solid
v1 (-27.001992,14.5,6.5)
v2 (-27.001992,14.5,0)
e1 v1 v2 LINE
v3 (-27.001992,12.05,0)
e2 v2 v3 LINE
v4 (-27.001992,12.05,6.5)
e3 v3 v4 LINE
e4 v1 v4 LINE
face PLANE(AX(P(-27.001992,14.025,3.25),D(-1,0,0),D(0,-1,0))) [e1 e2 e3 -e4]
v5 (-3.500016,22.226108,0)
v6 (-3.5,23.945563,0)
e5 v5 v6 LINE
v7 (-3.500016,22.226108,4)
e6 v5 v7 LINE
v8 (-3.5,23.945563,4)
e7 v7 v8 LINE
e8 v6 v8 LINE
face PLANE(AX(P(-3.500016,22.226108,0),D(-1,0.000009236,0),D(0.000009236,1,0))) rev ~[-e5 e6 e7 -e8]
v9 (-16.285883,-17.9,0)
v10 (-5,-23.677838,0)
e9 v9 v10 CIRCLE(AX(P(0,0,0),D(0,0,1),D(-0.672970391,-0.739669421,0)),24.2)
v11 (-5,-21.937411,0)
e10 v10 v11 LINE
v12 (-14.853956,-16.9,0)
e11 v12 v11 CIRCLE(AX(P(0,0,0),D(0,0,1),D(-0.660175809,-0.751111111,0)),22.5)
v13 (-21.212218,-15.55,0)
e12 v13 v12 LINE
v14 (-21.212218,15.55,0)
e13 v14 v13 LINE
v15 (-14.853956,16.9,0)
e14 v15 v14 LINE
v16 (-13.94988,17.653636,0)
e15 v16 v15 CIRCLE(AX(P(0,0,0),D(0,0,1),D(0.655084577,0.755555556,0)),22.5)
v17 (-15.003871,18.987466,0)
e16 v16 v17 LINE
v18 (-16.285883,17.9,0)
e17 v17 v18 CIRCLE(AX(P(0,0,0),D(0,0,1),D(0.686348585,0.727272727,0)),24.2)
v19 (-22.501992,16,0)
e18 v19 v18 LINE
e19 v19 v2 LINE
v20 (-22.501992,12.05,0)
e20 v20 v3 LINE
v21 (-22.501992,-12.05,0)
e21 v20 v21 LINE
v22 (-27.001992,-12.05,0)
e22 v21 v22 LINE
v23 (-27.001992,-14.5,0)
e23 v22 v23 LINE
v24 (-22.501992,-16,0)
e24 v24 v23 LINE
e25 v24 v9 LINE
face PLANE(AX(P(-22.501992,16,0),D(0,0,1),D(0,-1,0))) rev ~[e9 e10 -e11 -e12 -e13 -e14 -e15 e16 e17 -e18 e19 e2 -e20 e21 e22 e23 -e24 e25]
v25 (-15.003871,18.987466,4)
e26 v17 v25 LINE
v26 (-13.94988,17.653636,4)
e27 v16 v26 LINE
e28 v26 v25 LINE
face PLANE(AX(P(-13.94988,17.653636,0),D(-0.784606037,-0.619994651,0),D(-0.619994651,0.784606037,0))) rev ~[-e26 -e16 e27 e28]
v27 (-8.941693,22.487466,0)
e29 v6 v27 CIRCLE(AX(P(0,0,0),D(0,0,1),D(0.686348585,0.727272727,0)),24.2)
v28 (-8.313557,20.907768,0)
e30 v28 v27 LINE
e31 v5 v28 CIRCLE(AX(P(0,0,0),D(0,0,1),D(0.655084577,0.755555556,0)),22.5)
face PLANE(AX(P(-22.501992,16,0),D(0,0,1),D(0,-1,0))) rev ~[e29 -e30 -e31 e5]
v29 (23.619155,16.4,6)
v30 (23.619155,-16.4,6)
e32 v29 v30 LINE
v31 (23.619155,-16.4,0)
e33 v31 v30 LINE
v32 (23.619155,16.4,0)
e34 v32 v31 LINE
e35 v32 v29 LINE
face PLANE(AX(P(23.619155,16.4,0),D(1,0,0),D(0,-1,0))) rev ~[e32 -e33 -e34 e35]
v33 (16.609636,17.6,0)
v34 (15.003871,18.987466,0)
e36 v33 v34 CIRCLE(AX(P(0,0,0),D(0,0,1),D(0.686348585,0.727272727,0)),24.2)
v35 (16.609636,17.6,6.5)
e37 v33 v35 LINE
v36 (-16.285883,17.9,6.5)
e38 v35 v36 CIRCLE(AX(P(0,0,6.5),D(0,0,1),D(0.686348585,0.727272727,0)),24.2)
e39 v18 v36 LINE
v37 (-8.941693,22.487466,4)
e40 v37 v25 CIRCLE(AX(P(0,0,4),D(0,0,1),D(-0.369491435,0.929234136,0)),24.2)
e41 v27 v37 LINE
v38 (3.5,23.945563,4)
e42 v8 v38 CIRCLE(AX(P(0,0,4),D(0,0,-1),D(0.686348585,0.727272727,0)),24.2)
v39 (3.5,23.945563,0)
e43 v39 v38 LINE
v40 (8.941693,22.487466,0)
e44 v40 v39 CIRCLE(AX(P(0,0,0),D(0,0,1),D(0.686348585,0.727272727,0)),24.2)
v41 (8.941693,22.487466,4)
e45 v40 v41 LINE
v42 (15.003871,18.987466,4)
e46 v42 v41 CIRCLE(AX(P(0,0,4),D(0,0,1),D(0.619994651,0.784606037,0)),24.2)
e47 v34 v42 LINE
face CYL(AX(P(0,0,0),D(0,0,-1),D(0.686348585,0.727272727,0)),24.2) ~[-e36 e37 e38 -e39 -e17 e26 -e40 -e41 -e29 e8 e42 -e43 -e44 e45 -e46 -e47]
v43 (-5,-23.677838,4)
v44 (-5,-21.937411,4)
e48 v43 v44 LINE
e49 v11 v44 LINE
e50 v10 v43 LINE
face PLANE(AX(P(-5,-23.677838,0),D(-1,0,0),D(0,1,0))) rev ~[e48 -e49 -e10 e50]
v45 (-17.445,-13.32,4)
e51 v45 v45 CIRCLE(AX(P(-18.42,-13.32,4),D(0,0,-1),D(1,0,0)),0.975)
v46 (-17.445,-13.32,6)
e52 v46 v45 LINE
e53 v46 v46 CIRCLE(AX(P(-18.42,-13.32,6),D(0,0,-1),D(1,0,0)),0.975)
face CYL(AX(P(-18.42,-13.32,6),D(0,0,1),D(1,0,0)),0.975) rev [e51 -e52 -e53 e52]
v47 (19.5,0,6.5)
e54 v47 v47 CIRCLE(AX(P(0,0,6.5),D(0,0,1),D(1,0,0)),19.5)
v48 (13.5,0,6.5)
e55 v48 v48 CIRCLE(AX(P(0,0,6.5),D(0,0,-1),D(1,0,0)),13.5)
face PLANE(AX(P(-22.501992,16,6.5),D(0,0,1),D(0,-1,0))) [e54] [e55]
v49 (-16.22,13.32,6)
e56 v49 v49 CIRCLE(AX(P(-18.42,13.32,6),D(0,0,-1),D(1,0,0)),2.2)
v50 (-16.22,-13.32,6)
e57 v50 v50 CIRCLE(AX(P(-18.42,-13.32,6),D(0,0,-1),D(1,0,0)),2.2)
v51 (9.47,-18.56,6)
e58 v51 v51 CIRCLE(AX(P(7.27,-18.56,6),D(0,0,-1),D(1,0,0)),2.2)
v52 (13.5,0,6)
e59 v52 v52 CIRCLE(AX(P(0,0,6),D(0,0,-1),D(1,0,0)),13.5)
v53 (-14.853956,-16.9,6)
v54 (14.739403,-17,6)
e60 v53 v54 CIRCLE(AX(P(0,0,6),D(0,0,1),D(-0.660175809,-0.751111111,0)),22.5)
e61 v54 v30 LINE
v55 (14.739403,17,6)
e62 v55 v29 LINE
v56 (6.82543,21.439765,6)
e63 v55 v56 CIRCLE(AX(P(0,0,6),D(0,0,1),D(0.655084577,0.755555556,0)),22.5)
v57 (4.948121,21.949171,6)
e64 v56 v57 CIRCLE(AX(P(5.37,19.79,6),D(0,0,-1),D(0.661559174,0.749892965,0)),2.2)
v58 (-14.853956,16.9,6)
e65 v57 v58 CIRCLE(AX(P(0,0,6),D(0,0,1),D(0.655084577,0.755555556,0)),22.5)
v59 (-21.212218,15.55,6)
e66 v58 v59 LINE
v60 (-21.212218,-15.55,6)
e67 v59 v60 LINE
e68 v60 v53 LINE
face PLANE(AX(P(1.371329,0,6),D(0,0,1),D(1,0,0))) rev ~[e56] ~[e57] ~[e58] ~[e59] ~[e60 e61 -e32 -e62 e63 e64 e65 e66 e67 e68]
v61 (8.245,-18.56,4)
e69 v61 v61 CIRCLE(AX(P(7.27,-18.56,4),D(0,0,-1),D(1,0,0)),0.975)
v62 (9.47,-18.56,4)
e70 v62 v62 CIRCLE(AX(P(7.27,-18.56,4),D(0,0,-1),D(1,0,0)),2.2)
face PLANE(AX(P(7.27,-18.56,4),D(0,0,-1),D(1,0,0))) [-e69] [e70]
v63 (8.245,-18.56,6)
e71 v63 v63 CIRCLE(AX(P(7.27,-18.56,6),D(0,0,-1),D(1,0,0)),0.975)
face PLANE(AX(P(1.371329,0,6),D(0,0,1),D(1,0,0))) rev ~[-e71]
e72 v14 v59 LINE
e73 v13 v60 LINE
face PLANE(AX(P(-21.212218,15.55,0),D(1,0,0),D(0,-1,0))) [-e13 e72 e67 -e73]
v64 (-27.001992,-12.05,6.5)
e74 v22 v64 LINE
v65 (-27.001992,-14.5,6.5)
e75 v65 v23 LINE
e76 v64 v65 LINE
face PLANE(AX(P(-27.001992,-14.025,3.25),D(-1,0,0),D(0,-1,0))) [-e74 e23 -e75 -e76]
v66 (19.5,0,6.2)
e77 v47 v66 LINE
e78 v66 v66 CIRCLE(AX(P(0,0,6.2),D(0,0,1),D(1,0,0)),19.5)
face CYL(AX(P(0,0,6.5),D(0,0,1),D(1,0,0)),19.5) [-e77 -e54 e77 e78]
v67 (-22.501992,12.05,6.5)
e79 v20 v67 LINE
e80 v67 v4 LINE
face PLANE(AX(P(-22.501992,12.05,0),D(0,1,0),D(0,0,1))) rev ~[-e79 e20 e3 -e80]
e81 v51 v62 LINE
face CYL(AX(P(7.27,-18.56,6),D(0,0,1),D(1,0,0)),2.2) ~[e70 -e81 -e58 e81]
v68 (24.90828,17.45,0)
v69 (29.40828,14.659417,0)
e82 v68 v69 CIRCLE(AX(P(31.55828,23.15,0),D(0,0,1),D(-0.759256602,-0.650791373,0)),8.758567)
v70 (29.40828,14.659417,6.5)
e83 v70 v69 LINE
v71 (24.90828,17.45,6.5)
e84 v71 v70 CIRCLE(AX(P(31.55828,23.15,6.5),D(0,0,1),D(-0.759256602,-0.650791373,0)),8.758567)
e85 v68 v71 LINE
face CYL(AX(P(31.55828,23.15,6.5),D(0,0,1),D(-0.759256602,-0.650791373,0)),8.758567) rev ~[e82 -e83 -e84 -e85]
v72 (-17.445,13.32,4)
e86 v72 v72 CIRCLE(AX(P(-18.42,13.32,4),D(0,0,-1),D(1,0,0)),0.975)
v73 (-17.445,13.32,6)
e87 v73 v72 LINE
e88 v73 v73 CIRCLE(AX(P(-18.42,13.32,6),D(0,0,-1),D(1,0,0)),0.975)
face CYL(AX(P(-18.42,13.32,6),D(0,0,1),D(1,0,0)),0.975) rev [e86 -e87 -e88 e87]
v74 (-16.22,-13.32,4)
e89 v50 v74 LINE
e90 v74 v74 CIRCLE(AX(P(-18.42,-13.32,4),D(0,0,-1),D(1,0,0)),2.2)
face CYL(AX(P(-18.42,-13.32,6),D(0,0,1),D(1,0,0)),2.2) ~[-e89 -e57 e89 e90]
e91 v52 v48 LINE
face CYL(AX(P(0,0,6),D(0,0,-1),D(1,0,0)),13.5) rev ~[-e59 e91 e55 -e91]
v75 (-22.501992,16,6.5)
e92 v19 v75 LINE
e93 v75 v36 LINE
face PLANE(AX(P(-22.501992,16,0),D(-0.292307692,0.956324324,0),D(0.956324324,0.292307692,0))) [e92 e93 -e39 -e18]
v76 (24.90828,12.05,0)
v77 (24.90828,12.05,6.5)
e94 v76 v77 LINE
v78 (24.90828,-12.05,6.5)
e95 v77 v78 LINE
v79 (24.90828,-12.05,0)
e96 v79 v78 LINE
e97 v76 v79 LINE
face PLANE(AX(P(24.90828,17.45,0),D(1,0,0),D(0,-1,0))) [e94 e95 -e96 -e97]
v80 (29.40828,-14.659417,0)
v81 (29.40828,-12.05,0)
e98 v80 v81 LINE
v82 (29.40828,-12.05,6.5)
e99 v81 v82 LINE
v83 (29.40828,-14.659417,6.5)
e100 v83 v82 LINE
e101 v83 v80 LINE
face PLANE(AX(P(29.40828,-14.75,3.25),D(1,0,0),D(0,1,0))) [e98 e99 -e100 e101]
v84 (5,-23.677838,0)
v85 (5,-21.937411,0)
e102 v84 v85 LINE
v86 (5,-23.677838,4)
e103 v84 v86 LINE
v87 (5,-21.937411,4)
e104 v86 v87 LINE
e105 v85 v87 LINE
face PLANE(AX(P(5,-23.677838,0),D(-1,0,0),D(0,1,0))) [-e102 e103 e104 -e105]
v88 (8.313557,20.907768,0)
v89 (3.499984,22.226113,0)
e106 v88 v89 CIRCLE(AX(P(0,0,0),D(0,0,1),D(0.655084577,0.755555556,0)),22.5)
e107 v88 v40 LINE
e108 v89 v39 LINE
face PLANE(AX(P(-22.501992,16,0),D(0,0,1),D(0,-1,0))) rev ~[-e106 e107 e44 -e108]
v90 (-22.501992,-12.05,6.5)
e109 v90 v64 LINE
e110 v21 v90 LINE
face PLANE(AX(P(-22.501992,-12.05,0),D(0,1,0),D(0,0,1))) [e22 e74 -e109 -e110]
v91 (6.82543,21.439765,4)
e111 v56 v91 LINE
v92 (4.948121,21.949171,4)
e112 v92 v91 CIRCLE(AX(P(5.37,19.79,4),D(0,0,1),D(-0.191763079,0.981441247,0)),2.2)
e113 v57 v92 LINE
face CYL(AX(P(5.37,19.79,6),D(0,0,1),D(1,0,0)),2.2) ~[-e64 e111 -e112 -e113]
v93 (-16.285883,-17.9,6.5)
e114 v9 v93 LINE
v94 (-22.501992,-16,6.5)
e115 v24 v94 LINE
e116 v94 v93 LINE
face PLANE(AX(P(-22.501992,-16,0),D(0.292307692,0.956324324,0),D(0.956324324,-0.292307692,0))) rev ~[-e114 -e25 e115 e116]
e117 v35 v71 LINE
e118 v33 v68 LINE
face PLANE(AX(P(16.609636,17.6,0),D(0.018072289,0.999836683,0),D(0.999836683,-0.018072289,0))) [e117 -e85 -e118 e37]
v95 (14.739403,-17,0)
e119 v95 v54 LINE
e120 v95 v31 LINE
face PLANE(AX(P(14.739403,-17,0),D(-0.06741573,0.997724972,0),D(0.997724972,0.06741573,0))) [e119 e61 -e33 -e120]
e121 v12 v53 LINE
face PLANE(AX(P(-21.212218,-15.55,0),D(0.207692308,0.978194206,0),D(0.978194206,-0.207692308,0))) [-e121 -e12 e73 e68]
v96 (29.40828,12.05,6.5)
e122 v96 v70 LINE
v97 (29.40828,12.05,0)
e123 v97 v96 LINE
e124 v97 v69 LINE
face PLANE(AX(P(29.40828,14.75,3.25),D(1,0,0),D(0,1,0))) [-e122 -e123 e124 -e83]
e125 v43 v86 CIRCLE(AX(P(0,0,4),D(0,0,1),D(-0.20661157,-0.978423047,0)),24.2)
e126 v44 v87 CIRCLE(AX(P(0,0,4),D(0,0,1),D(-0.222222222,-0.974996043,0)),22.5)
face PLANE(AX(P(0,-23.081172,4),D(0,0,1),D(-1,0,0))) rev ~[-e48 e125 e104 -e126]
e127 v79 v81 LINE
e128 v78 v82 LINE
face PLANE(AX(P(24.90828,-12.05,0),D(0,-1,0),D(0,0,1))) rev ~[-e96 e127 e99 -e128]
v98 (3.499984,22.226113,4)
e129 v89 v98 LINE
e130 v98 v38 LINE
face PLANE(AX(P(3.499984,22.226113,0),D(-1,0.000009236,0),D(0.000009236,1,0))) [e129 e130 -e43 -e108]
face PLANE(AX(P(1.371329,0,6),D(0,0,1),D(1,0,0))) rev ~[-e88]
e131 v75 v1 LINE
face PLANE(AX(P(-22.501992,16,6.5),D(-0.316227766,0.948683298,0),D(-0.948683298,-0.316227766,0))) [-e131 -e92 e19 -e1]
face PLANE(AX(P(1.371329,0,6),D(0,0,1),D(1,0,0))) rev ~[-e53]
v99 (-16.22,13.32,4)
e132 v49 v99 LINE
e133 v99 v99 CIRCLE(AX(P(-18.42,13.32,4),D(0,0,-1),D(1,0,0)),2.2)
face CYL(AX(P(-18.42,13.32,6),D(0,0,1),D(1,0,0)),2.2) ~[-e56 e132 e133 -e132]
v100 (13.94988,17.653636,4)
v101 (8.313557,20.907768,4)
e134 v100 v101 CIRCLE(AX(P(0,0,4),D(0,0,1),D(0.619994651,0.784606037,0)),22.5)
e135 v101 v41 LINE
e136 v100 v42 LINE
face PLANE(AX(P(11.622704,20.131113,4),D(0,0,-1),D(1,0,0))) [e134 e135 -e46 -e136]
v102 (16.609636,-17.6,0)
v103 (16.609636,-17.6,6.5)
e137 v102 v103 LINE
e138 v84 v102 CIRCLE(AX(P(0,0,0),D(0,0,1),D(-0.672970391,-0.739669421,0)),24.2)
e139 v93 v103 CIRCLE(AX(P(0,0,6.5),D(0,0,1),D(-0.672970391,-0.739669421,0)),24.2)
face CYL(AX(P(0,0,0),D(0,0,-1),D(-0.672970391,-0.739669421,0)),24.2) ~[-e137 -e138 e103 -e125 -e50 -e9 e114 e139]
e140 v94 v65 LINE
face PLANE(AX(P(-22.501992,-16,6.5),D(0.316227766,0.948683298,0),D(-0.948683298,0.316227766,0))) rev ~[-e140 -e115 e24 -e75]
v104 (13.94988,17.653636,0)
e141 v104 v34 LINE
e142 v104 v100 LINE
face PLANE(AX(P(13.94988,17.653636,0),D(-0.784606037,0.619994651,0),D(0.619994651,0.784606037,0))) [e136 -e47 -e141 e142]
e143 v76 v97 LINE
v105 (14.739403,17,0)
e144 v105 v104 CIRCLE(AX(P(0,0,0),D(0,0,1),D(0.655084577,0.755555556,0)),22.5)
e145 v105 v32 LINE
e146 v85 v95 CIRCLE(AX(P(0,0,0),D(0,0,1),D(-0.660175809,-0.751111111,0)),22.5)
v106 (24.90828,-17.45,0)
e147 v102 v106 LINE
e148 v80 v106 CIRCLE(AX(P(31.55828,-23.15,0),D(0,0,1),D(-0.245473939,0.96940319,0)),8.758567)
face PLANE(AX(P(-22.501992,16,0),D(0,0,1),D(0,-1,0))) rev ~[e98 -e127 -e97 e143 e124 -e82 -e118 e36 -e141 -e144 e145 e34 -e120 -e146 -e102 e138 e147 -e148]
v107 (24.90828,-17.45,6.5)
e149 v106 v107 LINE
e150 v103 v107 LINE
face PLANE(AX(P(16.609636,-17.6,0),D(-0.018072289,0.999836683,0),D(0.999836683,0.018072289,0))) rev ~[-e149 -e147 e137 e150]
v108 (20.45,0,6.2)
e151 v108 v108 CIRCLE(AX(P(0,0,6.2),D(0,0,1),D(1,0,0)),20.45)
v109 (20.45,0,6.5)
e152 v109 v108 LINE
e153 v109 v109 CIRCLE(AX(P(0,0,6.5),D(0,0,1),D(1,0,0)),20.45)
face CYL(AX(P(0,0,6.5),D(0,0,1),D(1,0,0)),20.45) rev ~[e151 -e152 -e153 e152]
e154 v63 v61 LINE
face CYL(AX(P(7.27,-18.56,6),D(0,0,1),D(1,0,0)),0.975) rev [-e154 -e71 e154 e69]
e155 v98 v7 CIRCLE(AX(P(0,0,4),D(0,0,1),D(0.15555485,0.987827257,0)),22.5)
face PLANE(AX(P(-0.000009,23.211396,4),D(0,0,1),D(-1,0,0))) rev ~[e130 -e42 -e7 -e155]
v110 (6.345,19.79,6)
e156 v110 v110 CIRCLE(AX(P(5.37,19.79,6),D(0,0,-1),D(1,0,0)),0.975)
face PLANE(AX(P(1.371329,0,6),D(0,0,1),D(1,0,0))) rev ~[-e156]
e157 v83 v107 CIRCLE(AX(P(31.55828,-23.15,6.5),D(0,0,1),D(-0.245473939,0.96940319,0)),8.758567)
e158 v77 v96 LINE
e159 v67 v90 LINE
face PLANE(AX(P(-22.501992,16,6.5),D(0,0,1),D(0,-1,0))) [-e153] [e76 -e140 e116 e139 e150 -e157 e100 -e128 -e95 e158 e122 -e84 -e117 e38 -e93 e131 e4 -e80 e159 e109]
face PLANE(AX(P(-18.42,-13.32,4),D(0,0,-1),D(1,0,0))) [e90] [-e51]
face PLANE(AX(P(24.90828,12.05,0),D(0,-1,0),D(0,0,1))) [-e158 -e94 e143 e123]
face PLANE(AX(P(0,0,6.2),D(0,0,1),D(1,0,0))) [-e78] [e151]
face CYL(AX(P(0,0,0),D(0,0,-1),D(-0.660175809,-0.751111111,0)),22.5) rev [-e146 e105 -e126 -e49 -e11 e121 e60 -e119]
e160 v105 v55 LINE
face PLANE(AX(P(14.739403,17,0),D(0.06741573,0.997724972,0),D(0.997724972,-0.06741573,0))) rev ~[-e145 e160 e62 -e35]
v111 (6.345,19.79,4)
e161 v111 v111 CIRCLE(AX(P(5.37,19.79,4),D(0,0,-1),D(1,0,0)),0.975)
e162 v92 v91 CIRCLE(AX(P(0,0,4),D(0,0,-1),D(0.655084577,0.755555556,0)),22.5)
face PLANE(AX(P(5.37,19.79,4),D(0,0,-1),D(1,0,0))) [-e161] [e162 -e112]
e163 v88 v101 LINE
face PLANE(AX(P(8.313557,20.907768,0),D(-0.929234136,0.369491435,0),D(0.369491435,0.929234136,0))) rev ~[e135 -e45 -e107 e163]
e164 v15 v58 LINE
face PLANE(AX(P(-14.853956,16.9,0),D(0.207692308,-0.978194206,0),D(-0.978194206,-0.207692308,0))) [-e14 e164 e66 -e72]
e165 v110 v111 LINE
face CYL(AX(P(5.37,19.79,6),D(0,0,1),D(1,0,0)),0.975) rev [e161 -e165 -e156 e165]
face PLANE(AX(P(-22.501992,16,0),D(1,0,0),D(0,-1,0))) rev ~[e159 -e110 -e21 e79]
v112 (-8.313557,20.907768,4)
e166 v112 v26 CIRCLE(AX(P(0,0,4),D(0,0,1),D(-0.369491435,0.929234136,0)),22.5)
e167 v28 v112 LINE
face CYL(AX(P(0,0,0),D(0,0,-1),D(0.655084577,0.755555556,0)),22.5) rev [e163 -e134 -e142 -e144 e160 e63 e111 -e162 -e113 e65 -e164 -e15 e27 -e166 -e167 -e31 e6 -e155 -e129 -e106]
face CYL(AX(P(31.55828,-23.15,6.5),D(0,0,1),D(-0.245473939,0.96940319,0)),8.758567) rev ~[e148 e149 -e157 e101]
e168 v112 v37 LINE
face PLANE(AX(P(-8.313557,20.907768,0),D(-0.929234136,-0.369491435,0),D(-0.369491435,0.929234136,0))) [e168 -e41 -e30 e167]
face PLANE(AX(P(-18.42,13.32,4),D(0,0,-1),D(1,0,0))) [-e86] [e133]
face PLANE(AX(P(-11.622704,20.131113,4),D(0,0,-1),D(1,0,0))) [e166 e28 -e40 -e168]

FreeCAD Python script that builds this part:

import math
import FreeCAD as App
import Part
import Sketcher
Q = App.Units.Quantity


def add_polygon(sketch, points):
    """Adds a closed chain of lines whose ends are joined by coincident constraints."""
    first, n = sketch.GeometryCount, len(points)
    for a, b in zip(points, points[1:] + points[:1]):
        sketch.addGeometry(Part.LineSegment(App.Vector(*a, 0), App.Vector(*b, 0)), False)
    for i in range(n):
        sketch.addConstraint(Sketcher.Constraint("Coincident", first + i, 2, first + (i + 1) % n, 1))

doc = App.newDocument("Part")
params = doc.addObject("Spreadsheet::Sheet", "Params")
for row, (alias, value) in enumerate([
    ("sketch1_radius", "24.2 mm"),
    ("sketch1_height", "32 mm"),
    ("sketch1_height2", "34.9 mm"),
    ("sketch1_length", "6.5 mm"),
    ("sketch1_length2", "8.3 mm"),
    ("pad1_length", "6.5 mm"),
    ("sketch2_radius", "22.5 mm"),
    ("sketch2_height", "31.1 mm"),
    ("sketch2_height2", "32.8 mm"),
    ("sketch2_length", "6.5 mm"),
    ("sketch2_length2", "8.9 mm"),
    ("pocket1_length", "6 mm"),
    ("sketch3_diameter", "27 mm"),
    ("pocket2_length", "1 mm"),
    ("sketch4_width", "5.4 mm"),
    ("sketch4_height", "6.5 mm"),
    ("pad2_length", "4.5 mm"),
    ("sketch5_width", "4.5 mm"),
    ("sketch5_width2", "2.15 mm"),
    ("pocket3_length", "10 mm"),
    ("sketch6_height", "6.5 mm"),
    ("sketch6_width", "3.95 mm"),
    ("pad3_length", "4.5 mm"),
    ("sketch7_width", "4.5 mm"),
    ("sketch7_height", "1.5 mm"),
    ("pocket4_length", "10 mm"),
    ("sketch8_diameter", "1.2 mm"),
    ("pocket5_length", "2 mm"),
    ("sketch9_diameter", "39 mm"),
    ("sketch9_diameter2", "40.9 mm"),
    ("pocket6_length", "0.3 mm"),
    ("sketch10_diameter", "4.4 mm"),
    ("sketch10_diameter2", "1.95 mm"),
    ("pad4_length", "2 mm"),
    ("sketch11_radius", "22.5 mm"),
    ("sketch11_radius2", "24.2 mm"),
    ("pocket7_length", "4 mm"),
    ("sketch12_radius", "22.5 mm"),
    ("sketch12_radius2", "24.2 mm"),
    ("pocket8_length", "4 mm"),
], start=1):
    params.set(f"A{row}", alias)
    params.set(f"B{row}", "=" + value)
    params.setAlias(f"B{row}", alias)

body = doc.addObject("PartDesign::Body", "Body")

# Sketch on XY plane
sketch1 = body.newObject("Sketcher::SketchObject", "Sketch")
sketch1.AttachmentSupport = (doc.getObject("XY_Plane"), [""])
sketch1.MapMode = "FlatFace"
sketch1.addGeometry([
    Part.LineSegment(App.Vector(-22.501992, 16, 0), App.Vector(-22.501992, -16, 0)),  # 0
    Part.LineSegment(App.Vector(-22.501992, -16, 0), App.Vector(-16.285883, -17.9, 0)),  # 1
    Part.ArcOfCircle(Part.Circle(App.Vector(0, 0, 0), App.Vector(0, 0, 1), 24.2), math.radians(-132.296737), math.radians(-46.658242)),  # 2
    Part.LineSegment(App.Vector(16.609636, -17.6, 0), App.Vector(24.90828, -17.45, 0)),  # 3
    Part.LineSegment(App.Vector(24.90828, -17.45, 0), App.Vector(24.90828, 17.45, 0)),  # 4
    Part.LineSegment(App.Vector(24.90828, 17.45, 0), App.Vector(16.609636, 17.6, 0)),  # 5
    Part.ArcOfCircle(Part.Circle(App.Vector(0, 0, 0), App.Vector(0, 0, 1), 24.2), math.radians(46.658242), math.radians(132.296737)),  # 6
    Part.LineSegment(App.Vector(-16.285883, 17.9, 0), App.Vector(-22.501992, 16, 0)),  # 7
], False)
sketch1.addConstraint([
    Sketcher.Constraint("Coincident", 0, 2, 1, 1),
    Sketcher.Constraint("Coincident", 1, 2, 2, 1),
    Sketcher.Constraint("Coincident", 2, 2, 3, 1),
    Sketcher.Constraint("Coincident", 3, 2, 4, 1),
    Sketcher.Constraint("Coincident", 4, 2, 5, 1),
    Sketcher.Constraint("Coincident", 5, 2, 6, 1),
    Sketcher.Constraint("Coincident", 6, 2, 7, 1),
    Sketcher.Constraint("Coincident", 7, 2, 0, 1),
    Sketcher.Constraint("Vertical", 0),
    Sketcher.Constraint("Vertical", 4),
    Sketcher.Constraint("Coincident", 2, 3, -1, 1),
    Sketcher.Constraint("Coincident", 6, 3, -1, 1),
    Sketcher.Constraint("Equal", 2, 6),
    Sketcher.Constraint("Vertical", 2, 2, 5, 2),
    Sketcher.Constraint("Vertical", 1, 2, 6, 2),
    Sketcher.Constraint("Equal", 3, 5),
    Sketcher.Constraint("Equal", 1, 7),
    Sketcher.Constraint("Radius", 2, Q("24.2 mm")),
    Sketcher.Constraint("DistanceY", 0, 2, 0, 1, Q("32 mm")),
    Sketcher.Constraint("DistanceY", 4, 1, 4, 2, Q("34.9 mm")),
    Sketcher.Constraint("Distance", 1, Q("6.5 mm")),
    Sketcher.Constraint("Distance", 3, Q("8.3 mm")),
    Sketcher.Constraint("DistanceY", 1, 2, -1, 1, Q("17.9 mm")),
    Sketcher.Constraint("DistanceY", 2, 2, -1, 1, Q("17.6 mm")),
])
sketch1.setExpression("Constraints[17]", "Params.sketch1_radius")
sketch1.setExpression("Constraints[18]", "Params.sketch1_height")
sketch1.setExpression("Constraints[19]", "Params.sketch1_height2")
sketch1.setExpression("Constraints[20]", "Params.sketch1_length")
sketch1.setExpression("Constraints[21]", "Params.sketch1_length2")
pad1 = body.newObject("PartDesign::Pad", "Pad")
pad1.Profile = sketch1
pad1.setExpression("Length", "Params.pad1_length")

# Sketch on XY plane
sketch2 = body.newObject("Sketcher::SketchObject", "Sketch001")
sketch2.AttachmentSupport = (doc.getObject("XY_Plane"), [""])
sketch2.MapMode = "FlatFace"
sketch2.addGeometry([
    Part.LineSegment(App.Vector(-14.853956, 16.9, 0), App.Vector(-21.212218, 15.55, 0)),  # 0
    Part.LineSegment(App.Vector(-21.212218, 15.55, 0), App.Vector(-21.212218, -15.55, 0)),  # 1
    Part.LineSegment(App.Vector(-21.212218, -15.55, 0), App.Vector(-14.853956, -16.9, 0)),  # 2
    Part.ArcOfCircle(Part.Circle(App.Vector(0, 0, 0), App.Vector(0, 0, 1), 22.5), math.radians(-131.313282), math.radians(-49.073937)),  # 3
    Part.LineSegment(App.Vector(14.739403, -17, 0), App.Vector(23.619155, -16.4, 0)),  # 4
    Part.LineSegment(App.Vector(23.619155, -16.4, 0), App.Vector(23.619155, 16.4, 0)),  # 5
    Part.LineSegment(App.Vector(23.619155, 16.4, 0), App.Vector(14.739403, 17, 0)),  # 6
    Part.ArcOfCircle(Part.Circle(App.Vector(0, 0, 0), App.Vector(0, 0, 1), 22.5), math.radians(49.073937), math.radians(131.313282)),  # 7
], False)
sketch2.addConstraint([
    Sketcher.Constraint("Coincident", 0, 2, 1, 1),
    Sketcher.Constraint("Coincident", 1, 2, 2, 1),
    Sketcher.Constraint("Coincident", 2, 2, 3, 1),
    Sketcher.Constraint("Coincident", 3, 2, 4, 1),
    Sketcher.Constraint("Coincident", 4, 2, 5, 1),
    Sketcher.Constraint("Coincident", 5, 2, 6, 1),
    Sketcher.Constraint("Coincident", 6, 2, 7, 1),
    Sketcher.Constraint("Coincident", 7, 2, 0, 1),
    Sketcher.Constraint("Vertical", 1),
    Sketcher.Constraint("Vertical", 5),
    Sketcher.Constraint("Coincident", 3, 3, -1, 1),
    Sketcher.Constraint("Coincident", 7, 3, -1, 1),
    Sketcher.Constraint("Equal", 3, 7),
    Sketcher.Constraint("Vertical", 3, 2, 6, 2),
    Sketcher.Constraint("Vertical", 2, 2, 7, 2),
    Sketcher.Constraint("Equal", 0, 2),
    Sketcher.Constraint("Equal", 4, 6),
    Sketcher.Constraint("Radius", 3, Q("22.5 mm")),
    Sketcher.Constraint("DistanceY", 1, 2, 1, 1, Q("31.1 mm")),
    Sketcher.Constraint("DistanceY", 5, 1, 5, 2, Q("32.8 mm")),
    Sketcher.Constraint("DistanceY", 3, 2, -1, 1, Q("17 mm")),
    Sketcher.Constraint("Distance", 0, Q("6.5 mm")),
    Sketcher.Constraint("Distance", 4, Q("8.9 mm")),
    Sketcher.Constraint("DistanceY", 2, 2, -1, 1, Q("16.9 mm")),
])
sketch2.setExpression("Constraints[17]", "Params.sketch2_radius")
sketch2.setExpression("Constraints[18]", "Params.sketch2_height")
sketch2.setExpression("Constraints[19]", "Params.sketch2_height2")
sketch2.setExpression("Constraints[21]", "Params.sketch2_length")
sketch2.setExpression("Constraints[22]", "Params.sketch2_length2")
pocket1 = body.newObject("PartDesign::Pocket", "Pocket")
pocket1.Profile = sketch2
pocket1.setExpression("Length", "Params.pocket1_length")
pocket1.Reversed = True

# Sketch on XY plane
sketch3 = body.newObject("Sketcher::SketchObject", "Sketch002")
sketch3.AttachmentSupport = (doc.getObject("XY_Plane"), [""])
sketch3.MapMode = "FlatFace"
sketch3.AttachmentOffset = App.Placement(App.Vector(0, 0, 6), App.Rotation())
sketch3.addGeometry(Part.Circle(App.Vector(0, 0, 0), App.Vector(0, 0, 1), 13.5), False)
sketch3.addConstraint([
    Sketcher.Constraint("Coincident", 0, 3, -1, 1),
    Sketcher.Constraint("Diameter", 0, Q("27 mm")),
])
sketch3.setExpression("Constraints[1]", "Params.sketch3_diameter")
pocket2 = body.newObject("PartDesign::Pocket", "Pocket001")
pocket2.Profile = sketch3
pocket2.setExpression("Length", "Params.pocket2_length")
pocket2.Reversed = True

# Sketch on YZ plane
sketch4 = body.newObject("Sketcher::SketchObject", "Sketch003")
sketch4.AttachmentSupport = (doc.getObject("YZ_Plane"), [""])
sketch4.MapMode = "FlatFace"
sketch4.AttachmentOffset = App.Placement(App.Vector(0, 0, 24.90828), App.Rotation())
add_polygon(sketch4, [(-17.45, 6.5), (-17.45, 0), (-12.05, 0), (-12.05, 6.5)])  # lines 0-3
add_polygon(sketch4, [(12.05, 6.5), (12.05, 0), (17.45, 0), (17.45, 6.5)])  # lines 4-7
sketch4.addConstraint([
    Sketcher.Constraint("Vertical", 0),
    Sketcher.Constraint("Horizontal", 1),
    Sketcher.Constraint("Vertical", 2),
    Sketcher.Constraint("Horizontal", 3),
    Sketcher.Constraint("Vertical", 4),
    Sketcher.Constraint("Horizontal", 5),
    Sketcher.Constraint("Vertical", 6),
    Sketcher.Constraint("Horizontal", 7),
    Sketcher.Constraint("Symmetric", 1, 2, 4, 2, -1, 1),
    Sketcher.Constraint("Symmetric", 0, 2, 5, 2, -2),
    Sketcher.Constraint("Horizontal", 3, 2, 6, 2),
    Sketcher.Constraint("DistanceX", 1, 1, 1, 2, Q("5.4 mm")),
    Sketcher.Constraint("DistanceY", 0, 2, 0, 1, Q("6.5 mm")),
    Sketcher.Constraint("DistanceX", 1, 2, 4, 2, Q("24.1 mm")),
])
sketch4.setExpression("Constraints[19]", "Params.sketch4_width")
sketch4.setExpression("Constraints[20]", "Params.sketch4_height")
pad2 = body.newObject("PartDesign::Pad", "Pad001")
pad2.Profile = sketch4
pad2.setExpression("Length", "Params.pad2_length")

# Sketch on XY plane
sketch5 = body.newObject("Sketcher::SketchObject", "Sketch004")
sketch5.AttachmentSupport = (doc.getObject("XY_Plane"), [""])
sketch5.MapMode = "FlatFace"
sketch5.AttachmentOffset = App.Placement(App.Vector(0, 0, 6.5), App.Rotation())
sketch5.addGeometry([
    Part.ArcOfCircle(Part.Circle(App.Vector(31.55828, 23.15, 0), App.Vector(0, 0, 1), 8.758567), math.radians(-139.398705), math.radians(-104.209844)),  # 0
    Part.LineSegment(App.Vector(29.40828, 14.659417, 0), App.Vector(29.40828, 17.45, 0)),  # 1
    Part.LineSegment(App.Vector(29.40828, 17.45, 0), App.Vector(24.90828, 17.45, 0)),  # 2
    Part.ArcOfCircle(Part.Circle(App.Vector(31.55828, -23.15, 0), App.Vector(0, 0, 1), 8.758567), math.radians(104.209844), math.radians(139.398705)),  # 3
    Part.LineSegment(App.Vector(24.90828, -17.45, 0), App.Vector(29.40828, -17.45, 0)),  # 4
    Part.LineSegment(App.Vector(29.40828, -17.45, 0), App.Vector(29.40828, -14.659417, 0)),  # 5
], False)
sketch5.addConstraint([
    Sketcher.Constraint("Coincident", 0, 2, 1, 1),
    Sketcher.Constraint("Coincident", 1, 2, 2, 1),
    Sketcher.Constraint("Coincident", 2, 2, 0, 1),
    Sketcher.Constraint("Coincident", 3, 2, 4, 1),
    Sketcher.Constraint("Coincident", 4, 2, 5, 1),
    Sketcher.Constraint("Coincident", 5, 2, 3, 1),
    Sketcher.Constraint("Vertical", 1),
    Sketcher.Constraint("Horizontal", 2),
    Sketcher.Constraint("Horizontal", 4),
    Sketcher.Constraint("Vertical", 5),
    Sketcher.Constraint("Equal", 0, 3),
    Sketcher.Constraint("Symmetric", 0, 3, 3, 3, -1),
    Sketcher.Constraint("Symmetric", 1, 2, 4, 2, -1),
    Sketcher.Constraint("DistanceX", 2, 2, 2, 1, Q("4.5 mm")),
    Sketcher.Constraint("DistanceY", 3, 3, 0, 3, Q("46.3 mm")),
    Sketcher.Constraint("DistanceY", 1, 2, 0, 3, Q("5.7 mm")),
    Sketcher.Constraint("DistanceX", 0, 2, 0, 3, Q("2.15 mm")),
    Sketcher.Constraint("DistanceX", -1, 1, 0, 3, Q("31.55828 mm")),
])
sketch5.setExpression("Constraints[13]", "Params.sketch5_width")
sketch5.setExpression("Constraints[16]", "Params.sketch5_width2")
pocket3 = body.newObject("PartDesign::Pocket", "Pocket002")
pocket3.Profile = sketch5
pocket3.setExpression("Length", "Params.pocket3_length")

# Sketch on YZ plane
sketch6 = body.newObject("Sketcher::SketchObject", "Sketch005")
sketch6.AttachmentSupport = (doc.getObject("YZ_Plane"), [""])
sketch6.MapMode = "FlatFace"
sketch6.AttachmentOffset = App.Placement(App.Vector(0, 0, -22.501992), App.Rotation())
add_polygon(sketch6, [(16, 6.5), (16, 0), (12.05, 0), (12.05, 6.5)])  # lines 0-3
add_polygon(sketch6, [(-12.05, 6.5), (-12.05, 0), (-16, 0), (-16, 6.5)])  # lines 4-7
sketch6.addConstraint([
    Sketcher.Constraint("Vertical", 0),
    Sketcher.Constraint("Horizontal", 1),
    Sketcher.Constraint("Vertical", 2),
    Sketcher.Constraint("Horizontal", 3),
    Sketcher.Constraint("Vertical", 4),
    Sketcher.Constraint("Horizontal", 5),
    Sketcher.Constraint("Vertical", 6),
    Sketcher.Constraint("Horizontal", 7),
    Sketcher.Constraint("Symmetric", 1, 2, 4, 2, -1, 1),
    Sketcher.Constraint("Symmetric", 0, 2, 5, 2, -2),
    Sketcher.Constraint("Horizontal", 3, 2, 6, 2),
    Sketcher.Constraint("DistanceY", 0, 2, 0, 1, Q("6.5 mm")),
    Sketcher.Constraint("DistanceX", -1, 1, 0, 2, Q("16 mm")),
    Sketcher.Constraint("DistanceX", 1, 2, 1, 1, Q("3.95 mm")),
])
sketch6.setExpression("Constraints[19]", "Params.sketch6_height")
sketch6.setExpression("Constraints[21]", "Params.sketch6_width")
pad3 = body.newObject("PartDesign::Pad", "Pad002")
pad3.Profile = sketch6
pad3.setExpression("Length", "Params.pad3_length")
pad3.Reversed = True

# Sketch on XY plane
sketch7 = body.newObject("Sketcher::SketchObject", "Sketch006")
sketch7.AttachmentSupport = (doc.getObject("XY_Plane"), [""])
sketch7.MapMode = "FlatFace"
sketch7.AttachmentOffset = App.Placement(App.Vector(0, 0, 6.5), App.Rotation())
add_polygon(sketch7, [(-22.501992, 16), (-27.001992, 16), (-27.001992, 14.5)])  # lines 0-2
add_polygon(sketch7, [(-22.501992, -16), (-27.001992, -14.5), (-27.001992, -16)])  # lines 3-5
sketch7.addConstraint([
    Sketcher.Constraint("Horizontal", 0),
    Sketcher.Constraint("Vertical", 1),
    Sketcher.Constraint("Vertical", 4),
    Sketcher.Constraint("Horizontal", 5),
    Sketcher.Constraint("Symmetric", 1, 2, 3, 2, -1),
    Sketcher.Constraint("Symmetric", 2, 2, 5, 2, -1),
    Sketcher.Constraint("DistanceX", 0, 2, 0, 1, Q("4.5 mm")),
    Sketcher.Constraint("DistanceY", 1, 2, 1, 1, Q("1.5 mm")),
    Sketcher.Constraint("DistanceY", -1, 1, 0, 2, Q("16 mm")),
    Sketcher.Constraint("DistanceX", 0, 2, -1, 1, Q("27.001992 mm")),
])
sketch7.setExpression("Constraints[12]", "Params.sketch7_width")
sketch7.setExpression("Constraints[13]", "Params.sketch7_height")
pocket4 = body.newObject("PartDesign::Pocket", "Pocket003")
pocket4.Profile = sketch7
pocket4.setExpression("Length", "Params.pocket4_length")

# Sketch on YZ plane
sketch8 = body.newObject("Sketcher::SketchObject", "Sketch007")
sketch8.AttachmentSupport = (doc.getObject("YZ_Plane"), [""])
sketch8.MapMode = "FlatFace"
sketch8.AttachmentOffset = App.Placement(App.Vector(0, 0, 23.619155), App.Rotation())
sketch8.addGeometry(Part.Circle(App.Vector(-12.959417, 8.2, 0), App.Vector(0, 0, 1), 0.6), False)
sketch8.addConstraint([
    Sketcher.Constraint("Diameter", 0, Q("1.2 mm")),
    Sketcher.Constraint("DistanceY", -1, 1, 0, 3, Q("8.2 mm")),
    Sketcher.Constraint("DistanceX", 0, 3, -1, 1, Q("12.959417 mm")),
])
sketch8.setExpression("Constraints[0]", "Params.sketch8_diameter")
pocket5 = body.newObject("PartDesign::Pocket", "Pocket004")
pocket5.Profile = sketch8
pocket5.setExpression("Length", "Params.pocket5_length")
pocket5.Reversed = True

# Sketch on XY plane
sketch9 = body.newObject("Sketcher::SketchObject", "Sketch008")
sketch9.AttachmentSupport = (doc.getObject("XY_Plane"), [""])
sketch9.MapMode = "FlatFace"
sketch9.AttachmentOffset = App.Placement(App.Vector(0, 0, 6.5), App.Rotation())
sketch9.addGeometry([
    Part.Circle(App.Vector(0, 0, 0), App.Vector(0, 0, 1), 20.45),
    Part.Circle(App.Vector(0, 0, 0), App.Vector(0, 0, 1), 19.5),
], False)
sketch9.addConstraint([
    Sketcher.Constraint("Coincident", 0, 3, -1, 1),
    Sketcher.Constraint("Coincident", 1, 3, -1, 1),
    Sketcher.Constraint("Diameter", 1, Q("39 mm")),
    Sketcher.Constraint("Diameter", 0, Q("40.9 mm")),
])
sketch9.setExpression("Constraints[2]", "Params.sketch9_diameter")
sketch9.setExpression("Constraints[3]", "Params.sketch9_diameter2")
pocket6 = body.newObject("PartDesign::Pocket", "Pocket005")
pocket6.Profile = sketch9
pocket6.setExpression("Length", "Params.pocket6_length")

# Sketch on XY plane
sketch10 = body.newObject("Sketcher::SketchObject", "Sketch009")
sketch10.AttachmentSupport = (doc.getObject("XY_Plane"), [""])
sketch10.MapMode = "FlatFace"
sketch10.AttachmentOffset = App.Placement(App.Vector(0, 0, 6), App.Rotation())
sketch10.addGeometry([
    Part.Circle(App.Vector(-18.42, -13.32, 0), App.Vector(0, 0, 1), 2.2),  # 0
    Part.Circle(App.Vector(-18.42, -13.32, 0), App.Vector(0, 0, 1), 0.975),  # 1
    Part.Circle(App.Vector(7.27, -18.56, 0), App.Vector(0, 0, 1), 2.2),  # 2
    Part.Circle(App.Vector(7.27, -18.56, 0), App.Vector(0, 0, 1), 0.975),  # 3
    Part.Circle(App.Vector(5.37, 19.79, 0), App.Vector(0, 0, 1), 2.2),  # 4
    Part.Circle(App.Vector(5.37, 19.79, 0), App.Vector(0, 0, 1), 0.975),  # 5
    Part.Circle(App.Vector(-18.42, 13.32, 0), App.Vector(0, 0, 1), 2.2),  # 6
    Part.Circle(App.Vector(-18.42, 13.32, 0), App.Vector(0, 0, 1), 0.975),  # 7
], False)
sketch10.addConstraint([
    Sketcher.Constraint("Coincident", 1, 3, 0, 3),
    Sketcher.Constraint("Coincident", 3, 3, 2, 3),
    Sketcher.Constraint("Coincident", 5, 3, 4, 3),
    Sketcher.Constraint("Coincident", 7, 3, 6, 3),
    Sketcher.Constraint("Equal", 0, 2),
    Sketcher.Constraint("Equal", 1, 3),
    Sketcher.Constraint("Equal", 2, 4),
    Sketcher.Constraint("Equal", 3, 5),
    Sketcher.Constraint("Equal", 4, 6),
    Sketcher.Constraint("Equal", 5, 7),
    Sketcher.Constraint("Symmetric", 0, 3, 6, 3, -1),
    Sketcher.Constraint("Diameter", 0, Q("4.4 mm")),
    Sketcher.Constraint("Diameter", 1, Q("1.95 mm")),
    Sketcher.Constraint("DistanceX", 4, 3, 2, 3, Q("1.9 mm")),
    Sketcher.Constraint("DistanceX", 0, 3, -1, 1, Q("18.42 mm")),
    Sketcher.Constraint("DistanceY", 0, 3, -1, 1, Q("13.32 mm")),
    Sketcher.Constraint("DistanceX", -1, 1, 2, 3, Q("7.27 mm")),
    Sketcher.Constraint("DistanceY", 2, 3, -1, 1, Q("18.56 mm")),
    Sketcher.Constraint("DistanceY", -1, 1, 4, 3, Q("19.79 mm")),
])
sketch10.setExpression("Constraints[11]", "Params.sketch10_diameter")
sketch10.setExpression("Constraints[12]", "Params.sketch10_diameter2")
pad4 = body.newObject("PartDesign::Pad", "Pad003")
pad4.Profile = sketch10
pad4.setExpression("Length", "Params.pad4_length")
pad4.Reversed = True

# Sketch on XY plane
sketch11 = body.newObject("Sketcher::SketchObject", "Sketch010")
sketch11.AttachmentSupport = (doc.getObject("XY_Plane"), [""])
sketch11.MapMode = "FlatFace"
sketch11.addGeometry([
    Part.LineSegment(App.Vector(5, -23.677838, 0), App.Vector(5, -21.937411, 0)),
    Part.ArcOfCircle(Part.Circle(App.Vector(0, 0, 0), App.Vector(0, 0, 1), 22.5), math.radians(-102.839588), math.radians(-77.160412)),
    Part.LineSegment(App.Vector(-5, -21.937411, 0), App.Vector(-5, -23.677838, 0)),
    Part.ArcOfCircle(Part.Circle(App.Vector(0, 0, 0), App.Vector(0, 0, 1), 24.2), math.radians(-101.923855), math.radians(-78.076145)),
], False)
sketch11.addConstraint([
    Sketcher.Constraint("Coincident", 0, 2, 1, 2),
    Sketcher.Constraint("Coincident", 1, 1, 2, 1),
    Sketcher.Constraint("Coincident", 2, 2, 3, 1),
    Sketcher.Constraint("Coincident", 3, 2, 0, 1),
    Sketcher.Constraint("Vertical", 0),
    Sketcher.Constraint("Vertical", 2),
    Sketcher.Constraint("Coincident", 1, 3, -1, 1),
    Sketcher.Constraint("Coincident", 3, 3, -1, 1),
    Sketcher.Constraint("Horizontal", 0, 2, 1, 1),
    Sketcher.Constraint("Radius", 1, Q("22.5 mm")),
    Sketcher.Constraint("Radius", 3, Q("24.2 mm")),
    Sketcher.Constraint("DistanceX", -1, 1, 0, 2, Q("5 mm")),
])
sketch11.setExpression("Constraints[9]", "Params.sketch11_radius")
sketch11.setExpression("Constraints[10]", "Params.sketch11_radius2")
pocket7 = body.newObject("PartDesign::Pocket", "Pocket006")
pocket7.Profile = sketch11
pocket7.setExpression("Length", "Params.pocket7_length")
pocket7.Reversed = True

# Sketch on XY plane
sketch12 = body.newObject("Sketcher::SketchObject", "Sketch011")
sketch12.AttachmentSupport = (doc.getObject("XY_Plane"), [""])
sketch12.MapMode = "FlatFace"
sketch12.addGeometry([
    Part.LineSegment(App.Vector(3.499984, 22.226113, 0), App.Vector(3.5, 23.945563, 0)),  # 0
    Part.ArcOfCircle(Part.Circle(App.Vector(0, 0.000186, 0), App.Vector(0, 0, 1), 24.199816), math.radians(81.684192), math.radians(98.315808)),  # 1
    Part.LineSegment(App.Vector(-3.5, 23.945563, 0), App.Vector(-3.500016, 22.226108, 0)),  # 2
    Part.ArcOfCircle(Part.Circle(App.Vector(0, 0, 0), App.Vector(0, 0, 1), 22.5), math.radians(81.051023), math.radians(98.949059)),  # 3
    Part.ArcOfCircle(Part.Circle(App.Vector(0, 0, 0), App.Vector(0, 0, 1), 22.5), math.radians(51.684256), math.radians(68.315744)),  # 4
    Part.LineSegment(App.Vector(13.94988, 17.653636, 0), App.Vector(15.003871, 18.987466, 0)),  # 5
    Part.ArcOfCircle(Part.Circle(App.Vector(0, 0, 0), App.Vector(0, 0, 1), 24.2), math.radians(51.684256), math.radians(68.315744)),  # 6
    Part.LineSegment(App.Vector(8.941693, 22.487466, 0), App.Vector(8.313557, 20.907768, 0)),  # 7
    Part.ArcOfCircle(Part.Circle(App.Vector(0, 0, 0), App.Vector(0, 0, 1), 22.5), math.radians(111.684256), math.radians(128.315744)),  # 8
    Part.LineSegment(App.Vector(-8.313557, 20.907768, 0), App.Vector(-8.941693, 22.487466, 0)),  # 9
    Part.ArcOfCircle(Part.Circle(App.Vector(0, 0, 0), App.Vector(0, 0, 1), 24.2), math.radians(111.684256), math.radians(128.315744)),  # 10
    Part.LineSegment(App.Vector(-15.003871, 18.987466, 0), App.Vector(-13.94988, 17.653636, 0)),  # 11
], False)
sketch12.addConstraint([
    Sketcher.Constraint("Coincident", 0, 2, 1, 1),
    Sketcher.Constraint("Coincident", 1, 2, 2, 1),
    Sketcher.Constraint("Coincident", 2, 2, 3, 2),
    Sketcher.Constraint("Coincident", 3, 1, 0, 1),
    Sketcher.Constraint("Coincident", 4, 1, 5, 1),
    Sketcher.Constraint("Coincident", 5, 2, 6, 1),
    Sketcher.Constraint("Coincident", 6, 2, 7, 1),
    Sketcher.Constraint("Coincident", 7, 2, 4, 2),
    Sketcher.Constraint("Coincident", 8, 1, 9, 1),
    Sketcher.Constraint("Coincident", 9, 2, 10, 1),
    Sketcher.Constraint("Coincident", 10, 2, 11, 1),
    Sketcher.Constraint("Coincident", 11, 2, 8, 2),
    Sketcher.Constraint("Coincident", 3, 3, -1, 1),
    Sketcher.Constraint("Coincident", 4, 3, -1, 1),
    Sketcher.Constraint("Coincident", 6, 3, -1, 1),
    Sketcher.Constraint("Coincident", 8, 3, -1, 1),
    Sketcher.Constraint("Coincident", 10, 3, -1, 1),
    Sketcher.Constraint("Equal", 3, 4),
    Sketcher.Constraint("Equal", 4, 8),
    Sketcher.Constraint("Equal", 6, 10),
    Sketcher.Constraint("Symmetric", 0, 2, 1, 2, -2),
    Sketcher.Constraint("Parallel", 0, 2),
    Sketcher.Constraint("Horizontal", 7, 2, 8, 1),
    Sketcher.Constraint("Horizontal", 6, 2, 9, 2),
    Sketcher.Constraint("Horizontal", 5, 2, 10, 2),
    Sketcher.Constraint("Horizontal", 4, 1, 11, 2),
    Sketcher.Constraint("Radius", 3, Q("22.5 mm")),
    Sketcher.Constraint("Radius", 6, Q("24.2 mm")),
    Sketcher.Constraint("DistanceX", 1, 2, 0, 2, Q("7 mm")),
    Sketcher.Constraint("DistanceY", 5, 2, 6, 2, Q("3.5 mm")),
    Sketcher.Constraint("Radius", 1, Q("24.199816 mm")),
    Sketcher.Constraint("DistanceY", 7, 2, 6, 2, Q("1.579698 mm")),
    Sketcher.Constraint("Distance", 0, Q("1.71945 mm")),
    Sketcher.Constraint("DistanceY", -1, 1, 2, 2, Q("22.226108 mm")),
    Sketcher.Constraint("DistanceX", -1, 1, 4, 1, Q("13.94988 mm")),
    Sketcher.Constraint("DistanceX", -1, 1, 5, 2, Q("15.003871 mm")),
])
sketch12.setExpression("Constraints[26]", "Params.sketch12_radius")
sketch12.setExpression("Constraints[27]", "Params.sketch12_radius2")
pocket8 = body.newObject("PartDesign::Pocket", "Pocket007")
pocket8.Profile = sketch12
pocket8.setExpression("Length", "Params.pocket8_length")
pocket8.Reversed = True

doc.recompute()
